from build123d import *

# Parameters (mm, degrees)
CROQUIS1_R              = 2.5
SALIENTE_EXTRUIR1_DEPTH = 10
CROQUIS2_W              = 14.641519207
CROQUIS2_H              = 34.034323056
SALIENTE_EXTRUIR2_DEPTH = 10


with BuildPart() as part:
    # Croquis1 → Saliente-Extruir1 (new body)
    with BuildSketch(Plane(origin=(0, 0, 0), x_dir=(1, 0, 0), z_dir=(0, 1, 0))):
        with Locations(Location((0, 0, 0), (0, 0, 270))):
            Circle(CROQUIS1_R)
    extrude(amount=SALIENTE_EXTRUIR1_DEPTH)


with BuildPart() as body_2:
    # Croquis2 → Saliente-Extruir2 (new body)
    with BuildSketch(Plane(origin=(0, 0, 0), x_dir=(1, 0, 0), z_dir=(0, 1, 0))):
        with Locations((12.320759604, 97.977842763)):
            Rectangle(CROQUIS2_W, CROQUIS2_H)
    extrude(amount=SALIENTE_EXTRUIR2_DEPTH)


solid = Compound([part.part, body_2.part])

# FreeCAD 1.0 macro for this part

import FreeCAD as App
import Part
import Sketcher
from FreeCAD import Vector
Q = App.Units.Quantity


def add_polygon(sketch, points):
    """Adds a closed chain of lines whose ends are joined by coincident constraints."""
    first, n = sketch.GeometryCount, len(points)
    for a, b in zip(points, points[1:] + points[:1]):
        sketch.addGeometry(Part.LineSegment(App.Vector(*a, 0), App.Vector(*b, 0)), False)
    for i in range(n):
        sketch.addConstraint(Sketcher.Constraint("Coincident", first + i, 2, first + (i + 1) % n, 1))

doc = App.newDocument("Part")
body = doc.addObject("PartDesign::Body", "Body")

sketch1 = doc.addObject("Sketcher::SketchObject", "Sketch")
body.addObject(sketch1)
sketch1.AttachmentSupport = (doc.XZ_Plane, [""])
sketch1.MapMode = "FlatFace"
sketch1.addGeometry(Part.Circle(Vector(0, 0, 0), Vector(0, 0, 1), 2.5), False)
sketch1.addConstraint(Sketcher.Constraint("Coincident", 0, 3, -1, 1))
sketch1.addConstraint(Sketcher.Constraint("Diameter", 0, Q("5 mm")))
pad1 = doc.addObject("PartDesign::Pad", "Pad")
body.addObject(pad1)
pad1.Profile = sketch1
pad1.Length = 10
pad1.Reversed = True
body2 = doc.addObject("PartDesign::Body", "Body001")

sketch2 = doc.addObject("Sketcher::SketchObject", "Sketch001")
body2.addObject(sketch2)
sketch2.AttachmentSupport = (doc.getObject("XZ_Plane001"), [""])
sketch2.MapMode = "FlatFace"
add_polygon(sketch2, [(5, -114.995004), (5, -80.960681), (19.641519, -80.960681), (19.641519, -114.995004)])
sketch2.addConstraint(Sketcher.Constraint("Vertical", 0))
sketch2.addConstraint(Sketcher.Constraint("Horizontal", 1))
sketch2.addConstraint(Sketcher.Constraint("Vertical", 2))
sketch2.addConstraint(Sketcher.Constraint("Horizontal", 3))
sketch2.addConstraint(Sketcher.Constraint("DistanceX", -1, 1, 0, 2, Q("5 mm")))
sketch2.addConstraint(Sketcher.Constraint("DistanceX", 1, 1, 1, 2, Q("14.641519 mm")))
sketch2.addConstraint(Sketcher.Constraint("DistanceY", 0, 1, 0, 2, Q("34.034323 mm")))
sketch2.addConstraint(Sketcher.Constraint("DistanceY", 0, 2, -1, 1, Q("80.960681 mm")))
pad2 = doc.addObject("PartDesign::Pad", "Pad001")
body2.addObject(pad2)
pad2.Profile = sketch2
pad2.Length = 10
pad2.Reversed = True

doc.recompute()
